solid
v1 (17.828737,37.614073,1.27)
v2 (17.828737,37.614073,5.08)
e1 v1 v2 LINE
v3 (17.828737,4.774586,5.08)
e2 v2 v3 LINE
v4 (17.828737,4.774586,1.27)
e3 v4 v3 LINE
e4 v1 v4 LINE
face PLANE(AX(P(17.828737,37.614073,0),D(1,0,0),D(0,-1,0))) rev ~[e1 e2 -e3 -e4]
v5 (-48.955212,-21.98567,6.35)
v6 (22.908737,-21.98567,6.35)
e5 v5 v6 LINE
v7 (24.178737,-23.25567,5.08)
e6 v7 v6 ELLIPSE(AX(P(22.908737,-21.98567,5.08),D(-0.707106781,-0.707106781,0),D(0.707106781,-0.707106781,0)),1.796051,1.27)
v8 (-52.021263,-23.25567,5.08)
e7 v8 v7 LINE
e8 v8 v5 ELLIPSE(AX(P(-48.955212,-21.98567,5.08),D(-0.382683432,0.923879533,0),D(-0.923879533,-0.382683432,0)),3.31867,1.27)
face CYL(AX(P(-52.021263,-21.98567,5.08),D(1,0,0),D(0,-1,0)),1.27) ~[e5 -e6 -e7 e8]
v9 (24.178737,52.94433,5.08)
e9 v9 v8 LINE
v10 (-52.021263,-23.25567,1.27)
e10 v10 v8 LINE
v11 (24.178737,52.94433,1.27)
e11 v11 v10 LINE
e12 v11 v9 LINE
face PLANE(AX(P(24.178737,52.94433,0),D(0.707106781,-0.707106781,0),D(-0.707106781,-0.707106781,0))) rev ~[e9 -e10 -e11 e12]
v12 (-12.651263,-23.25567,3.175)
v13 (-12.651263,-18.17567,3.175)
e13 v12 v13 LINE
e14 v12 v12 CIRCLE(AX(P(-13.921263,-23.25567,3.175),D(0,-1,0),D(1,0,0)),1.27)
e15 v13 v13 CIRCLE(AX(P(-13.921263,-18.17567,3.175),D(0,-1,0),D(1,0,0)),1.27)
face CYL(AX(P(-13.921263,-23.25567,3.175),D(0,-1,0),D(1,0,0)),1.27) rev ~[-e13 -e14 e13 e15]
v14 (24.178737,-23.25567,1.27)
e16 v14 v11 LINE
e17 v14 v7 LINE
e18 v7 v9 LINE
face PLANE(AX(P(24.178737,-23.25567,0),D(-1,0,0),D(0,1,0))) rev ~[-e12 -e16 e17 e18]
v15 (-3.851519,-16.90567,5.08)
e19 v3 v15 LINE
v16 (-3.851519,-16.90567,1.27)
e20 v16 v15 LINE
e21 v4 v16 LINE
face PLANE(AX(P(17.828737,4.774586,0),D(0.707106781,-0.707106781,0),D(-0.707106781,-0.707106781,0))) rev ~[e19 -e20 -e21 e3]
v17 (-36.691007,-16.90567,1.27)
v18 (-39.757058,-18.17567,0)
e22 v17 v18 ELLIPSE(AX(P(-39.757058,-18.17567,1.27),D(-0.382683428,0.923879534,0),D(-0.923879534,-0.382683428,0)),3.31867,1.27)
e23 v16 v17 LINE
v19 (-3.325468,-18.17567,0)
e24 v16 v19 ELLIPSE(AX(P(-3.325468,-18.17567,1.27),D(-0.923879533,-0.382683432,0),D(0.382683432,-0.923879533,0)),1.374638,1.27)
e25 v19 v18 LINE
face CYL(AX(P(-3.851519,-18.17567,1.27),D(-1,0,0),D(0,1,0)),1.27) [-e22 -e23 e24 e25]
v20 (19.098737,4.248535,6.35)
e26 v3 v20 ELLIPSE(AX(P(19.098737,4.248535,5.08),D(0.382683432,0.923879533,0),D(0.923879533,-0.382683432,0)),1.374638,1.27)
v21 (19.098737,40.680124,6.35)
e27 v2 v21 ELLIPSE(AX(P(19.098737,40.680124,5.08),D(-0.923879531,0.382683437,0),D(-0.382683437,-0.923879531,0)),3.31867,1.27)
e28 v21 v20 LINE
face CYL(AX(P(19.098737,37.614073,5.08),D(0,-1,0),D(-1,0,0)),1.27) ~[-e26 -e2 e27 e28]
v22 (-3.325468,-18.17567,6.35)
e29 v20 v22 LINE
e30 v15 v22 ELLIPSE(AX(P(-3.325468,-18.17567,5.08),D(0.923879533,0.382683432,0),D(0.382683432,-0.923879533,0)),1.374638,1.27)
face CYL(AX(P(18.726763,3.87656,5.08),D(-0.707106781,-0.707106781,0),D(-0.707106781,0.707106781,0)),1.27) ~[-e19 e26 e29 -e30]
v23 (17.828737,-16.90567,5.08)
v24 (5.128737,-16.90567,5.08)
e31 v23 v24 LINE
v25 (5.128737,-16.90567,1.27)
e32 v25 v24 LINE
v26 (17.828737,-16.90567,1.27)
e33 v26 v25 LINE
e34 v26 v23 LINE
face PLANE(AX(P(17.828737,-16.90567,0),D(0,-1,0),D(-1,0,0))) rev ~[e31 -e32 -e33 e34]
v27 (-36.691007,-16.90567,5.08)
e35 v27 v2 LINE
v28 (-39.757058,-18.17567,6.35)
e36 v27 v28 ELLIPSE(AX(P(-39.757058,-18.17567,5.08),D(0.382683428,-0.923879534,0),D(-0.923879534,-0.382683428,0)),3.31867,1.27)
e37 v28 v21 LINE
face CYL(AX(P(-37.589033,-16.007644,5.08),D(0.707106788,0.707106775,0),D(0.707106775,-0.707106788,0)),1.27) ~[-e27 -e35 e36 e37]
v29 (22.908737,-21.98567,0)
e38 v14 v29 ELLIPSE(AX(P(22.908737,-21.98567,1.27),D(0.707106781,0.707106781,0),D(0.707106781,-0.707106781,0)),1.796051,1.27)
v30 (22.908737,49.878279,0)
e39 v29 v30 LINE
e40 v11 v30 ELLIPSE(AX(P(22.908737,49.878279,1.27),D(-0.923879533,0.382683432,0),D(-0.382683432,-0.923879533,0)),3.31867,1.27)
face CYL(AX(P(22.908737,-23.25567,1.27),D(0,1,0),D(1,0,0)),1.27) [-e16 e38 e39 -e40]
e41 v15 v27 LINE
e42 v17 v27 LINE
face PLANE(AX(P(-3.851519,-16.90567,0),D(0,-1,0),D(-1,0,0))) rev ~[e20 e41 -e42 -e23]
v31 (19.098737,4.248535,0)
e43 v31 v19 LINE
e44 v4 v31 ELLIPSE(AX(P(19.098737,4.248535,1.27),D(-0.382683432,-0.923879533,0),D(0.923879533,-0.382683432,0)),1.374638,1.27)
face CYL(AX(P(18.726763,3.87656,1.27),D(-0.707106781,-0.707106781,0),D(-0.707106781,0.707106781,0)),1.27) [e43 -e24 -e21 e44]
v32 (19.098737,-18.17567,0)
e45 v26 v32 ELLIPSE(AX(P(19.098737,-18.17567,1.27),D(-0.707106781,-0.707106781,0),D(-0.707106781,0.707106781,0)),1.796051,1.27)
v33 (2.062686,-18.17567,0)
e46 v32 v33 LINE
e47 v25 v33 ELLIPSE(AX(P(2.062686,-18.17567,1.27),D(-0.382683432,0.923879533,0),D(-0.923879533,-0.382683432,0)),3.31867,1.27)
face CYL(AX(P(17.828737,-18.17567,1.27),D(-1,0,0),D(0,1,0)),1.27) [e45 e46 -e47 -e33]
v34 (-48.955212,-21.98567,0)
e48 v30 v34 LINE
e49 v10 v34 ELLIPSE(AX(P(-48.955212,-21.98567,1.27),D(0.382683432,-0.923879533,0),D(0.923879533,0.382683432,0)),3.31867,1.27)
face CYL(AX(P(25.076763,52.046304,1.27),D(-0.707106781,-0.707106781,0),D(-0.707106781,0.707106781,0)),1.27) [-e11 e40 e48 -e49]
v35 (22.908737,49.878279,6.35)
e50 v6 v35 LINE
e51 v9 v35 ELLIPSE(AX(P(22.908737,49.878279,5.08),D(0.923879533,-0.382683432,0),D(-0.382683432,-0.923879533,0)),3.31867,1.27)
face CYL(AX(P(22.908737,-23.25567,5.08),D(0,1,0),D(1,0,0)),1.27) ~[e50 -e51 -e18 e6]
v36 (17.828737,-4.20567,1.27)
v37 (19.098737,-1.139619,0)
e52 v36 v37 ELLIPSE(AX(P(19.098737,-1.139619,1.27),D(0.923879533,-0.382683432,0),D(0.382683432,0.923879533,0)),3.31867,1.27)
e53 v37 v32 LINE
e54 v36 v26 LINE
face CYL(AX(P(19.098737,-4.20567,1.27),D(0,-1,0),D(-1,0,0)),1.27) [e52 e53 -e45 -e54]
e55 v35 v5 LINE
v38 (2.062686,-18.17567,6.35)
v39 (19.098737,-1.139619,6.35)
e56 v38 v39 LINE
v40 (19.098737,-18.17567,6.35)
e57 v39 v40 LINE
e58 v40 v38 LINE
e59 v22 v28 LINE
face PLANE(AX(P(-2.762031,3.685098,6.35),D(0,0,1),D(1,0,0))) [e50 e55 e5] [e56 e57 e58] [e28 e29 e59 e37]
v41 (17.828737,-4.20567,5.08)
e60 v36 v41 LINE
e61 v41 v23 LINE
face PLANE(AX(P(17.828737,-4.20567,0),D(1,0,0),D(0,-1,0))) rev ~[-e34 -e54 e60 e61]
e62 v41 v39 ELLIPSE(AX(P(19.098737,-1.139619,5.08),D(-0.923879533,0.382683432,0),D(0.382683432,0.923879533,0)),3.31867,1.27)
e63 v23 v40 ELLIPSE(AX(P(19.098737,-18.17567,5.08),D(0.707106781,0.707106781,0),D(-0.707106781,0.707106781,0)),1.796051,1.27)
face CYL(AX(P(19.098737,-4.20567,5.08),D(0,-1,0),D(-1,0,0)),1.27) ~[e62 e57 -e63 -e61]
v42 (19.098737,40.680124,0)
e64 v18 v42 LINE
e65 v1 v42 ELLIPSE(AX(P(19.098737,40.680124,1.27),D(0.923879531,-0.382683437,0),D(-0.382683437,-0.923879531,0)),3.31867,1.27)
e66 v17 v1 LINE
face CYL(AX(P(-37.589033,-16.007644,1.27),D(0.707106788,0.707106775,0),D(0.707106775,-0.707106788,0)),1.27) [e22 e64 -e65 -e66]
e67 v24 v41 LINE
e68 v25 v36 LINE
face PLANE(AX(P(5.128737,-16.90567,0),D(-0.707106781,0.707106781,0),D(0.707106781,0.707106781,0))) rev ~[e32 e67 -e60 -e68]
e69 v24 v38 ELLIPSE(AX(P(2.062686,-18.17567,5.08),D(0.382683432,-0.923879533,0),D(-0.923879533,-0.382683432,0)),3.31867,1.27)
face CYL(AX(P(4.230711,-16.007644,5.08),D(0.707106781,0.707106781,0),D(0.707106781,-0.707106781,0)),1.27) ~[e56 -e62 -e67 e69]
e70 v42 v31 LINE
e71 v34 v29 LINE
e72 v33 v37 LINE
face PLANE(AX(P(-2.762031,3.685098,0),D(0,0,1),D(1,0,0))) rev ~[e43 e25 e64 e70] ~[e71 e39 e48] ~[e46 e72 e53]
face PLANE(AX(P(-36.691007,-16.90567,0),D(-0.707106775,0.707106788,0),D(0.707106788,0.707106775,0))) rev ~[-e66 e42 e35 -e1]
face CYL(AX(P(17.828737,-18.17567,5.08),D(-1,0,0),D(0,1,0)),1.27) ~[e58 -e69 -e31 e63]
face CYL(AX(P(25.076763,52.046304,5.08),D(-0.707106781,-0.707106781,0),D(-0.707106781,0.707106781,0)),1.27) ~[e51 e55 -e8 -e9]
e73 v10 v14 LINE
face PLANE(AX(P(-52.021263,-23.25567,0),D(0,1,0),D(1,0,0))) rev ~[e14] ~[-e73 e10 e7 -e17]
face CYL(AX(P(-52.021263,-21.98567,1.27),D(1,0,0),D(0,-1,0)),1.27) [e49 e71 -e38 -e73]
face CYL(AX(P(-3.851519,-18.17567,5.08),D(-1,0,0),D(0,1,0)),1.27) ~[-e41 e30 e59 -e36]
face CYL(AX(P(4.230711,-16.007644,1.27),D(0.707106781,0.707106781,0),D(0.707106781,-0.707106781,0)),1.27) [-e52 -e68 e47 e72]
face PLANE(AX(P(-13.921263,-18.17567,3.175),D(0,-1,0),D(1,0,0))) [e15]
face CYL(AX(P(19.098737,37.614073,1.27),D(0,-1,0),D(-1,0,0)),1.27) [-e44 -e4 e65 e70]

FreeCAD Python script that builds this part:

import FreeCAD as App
import Part
import Sketcher

V = App.Vector
Q = App.Units.Quantity


def edges_at(feature, points):
    """Names of the edges that pass closest to the given points."""
    edges = feature.Shape.Edges
    near = lambda p: min(range(len(edges)), key=lambda i: edges[i].distToShape(Part.Vertex(*p))[0])
    return sorted({f"Edge{near(p) + 1}" for p in points})

doc = App.newDocument("Part")
body = doc.addObject("PartDesign::Body", "Body")

# Sketch on XY plane
sketch1 = doc.addObject("Sketcher::SketchObject", "Sketch")
body.addObject(sketch1)
sketch1.AttachmentSupport = (doc.XY_Plane, [""])
sketch1.MapMode = "FlatFace"
sketch1.addGeometry([
    Part.LineSegment(V(24, 53, 0), V(-52, -23, 0)),  # 0
    Part.LineSegment(V(-52, -23, 0), V(24, -23, 0)),  # 1
    Part.LineSegment(V(24, -23, 0), V(24, 53, 0)),  # 2
    Part.LineSegment(V(18, -4, 0), V(18, -17, 0)),  # 3
    Part.LineSegment(V(18, -17, 0), V(5, -17, 0)),  # 4
    Part.LineSegment(V(5, -17, 0), V(18, -4, 0)),  # 5
    Part.LineSegment(V(18, 5, 0), V(-4, -17, 0)),  # 6
    Part.LineSegment(V(-4, -17, 0), V(-37, -17, 0)),  # 7
    Part.LineSegment(V(-37, -17, 0), V(18, 38, 0)),  # 8
    Part.LineSegment(V(18, 38, 0), V(18, 5, 0)),  # 9
], False)
sketch1.addConstraint([
    Sketcher.Constraint("Coincident", 0, 2, 1, 1),
    Sketcher.Constraint("Coincident", 1, 2, 2, 1),
    Sketcher.Constraint("Coincident", 2, 2, 0, 1),
    Sketcher.Constraint("Coincident", 3, 2, 4, 1),
    Sketcher.Constraint("Coincident", 4, 2, 5, 1),
    Sketcher.Constraint("Coincident", 5, 2, 3, 1),
    Sketcher.Constraint("Coincident", 6, 2, 7, 1),
    Sketcher.Constraint("Coincident", 7, 2, 8, 1),
    Sketcher.Constraint("Coincident", 8, 2, 9, 1),
    Sketcher.Constraint("Coincident", 9, 2, 6, 1),
    Sketcher.Constraint("Horizontal", 1),
    Sketcher.Constraint("Vertical", 2),
    Sketcher.Constraint("Vertical", 3),
    Sketcher.Constraint("Horizontal", 4),
    Sketcher.Constraint("Horizontal", 7),
    Sketcher.Constraint("Vertical", 9),
    Sketcher.Constraint("Parallel", 0, 5),
    Sketcher.Constraint("Parallel", 5, 6),
    Sketcher.Constraint("Parallel", 6, 8),
    Sketcher.Constraint("Horizontal", 4, 2, 6, 2),
    Sketcher.Constraint("Vertical", 5, 2, 8, 2),
    Sketcher.Constraint("Equal", 1, 2),
    Sketcher.Constraint("DistanceX", 1, 1, 1, 2, Q("3 in")),
    Sketcher.Constraint("DistanceX", 4, 2, 4, 1, Q("0.5 in")),
    Sketcher.Constraint("DistanceX", 3, 2, 1, 2, Q("0.25 in")),
    Sketcher.Constraint("DistanceY", 1, 2, 3, 2, Q("0.25 in")),
    Sketcher.Constraint("Distance", 8, Q("77.102561 mm")),
    Sketcher.Constraint("DistanceX", 7, 2, 7, 1, Q("32.839488 mm")),
    Sketcher.Constraint("DistanceY", 0, 2, -1, 1, Q("23.25567 mm")),
    Sketcher.Constraint("DistanceX", 6, 2, -1, 1, Q("3.851519 mm")),
])
pad1 = doc.addObject("PartDesign::Pad", "Pad")
body.addObject(pad1)
pad1.Profile = sketch1
pad1.Length = Q("0.25 in")
doc.recompute()

fillet = doc.addObject("PartDesign::Fillet", "Fillet")
body.addObject(fillet)
fillet.Base = (pad1, edges_at(pad1, [
    (-13.921, 14.844, 6.35),
    (-13.921, -23.256, 6.35),
    (24.179, 14.844, 6.35),
    (11.479, -16.906, 6.35),
    (11.479, -10.556, 6.35),
    (17.829, -10.556, 6.35),
    (17.829, 21.194, 6.35),
    (6.989, -6.066, 6.35),
    (-20.271, -16.906, 6.35),
    (-9.431, 10.354, 6.35),
    (-13.921, -23.256, 0),
    (-13.921, 14.844, 0),
    (24.179, 14.844, 0),
    (11.479, -16.906, 0),
    (11.479, -10.556, 0),
    (17.829, -10.556, 0),
    (17.829, 21.194, 0),
    (6.989, -6.066, 0),
    (-20.271, -16.906, 0),
    (-9.431, 10.354, 0),
]))
fillet.Radius = Q("0.05 in")

# Sketch on XZ plane
sketch2 = doc.addObject("Sketcher::SketchObject", "Sketch001")
body.addObject(sketch2)
sketch2.AttachmentSupport = (doc.XZ_Plane, [""])
sketch2.MapMode = "FlatFace"
sketch2.AttachmentOffset = App.Placement(V(0, 0, 23.25567), App.Rotation())
sketch2.addGeometry(Part.Circle(V(-13.9, 3.2, 0), V(0, 0, 1), 1.3), False)
sketch2.addConstraint([
    Sketcher.Constraint("Diameter", 0, Q("0.1 in")),
    Sketcher.Constraint("DistanceY", -1, 1, 0, 3, Q("0.125 in")),
    Sketcher.Constraint("DistanceX", 0, 3, -1, 1, Q("13.921263 mm")),
])
pocket1 = doc.addObject("PartDesign::Pocket", "Pocket")
body.addObject(pocket1)
pocket1.Profile = sketch2
pocket1.Length = Q("0.2 in")

doc.recompute()
